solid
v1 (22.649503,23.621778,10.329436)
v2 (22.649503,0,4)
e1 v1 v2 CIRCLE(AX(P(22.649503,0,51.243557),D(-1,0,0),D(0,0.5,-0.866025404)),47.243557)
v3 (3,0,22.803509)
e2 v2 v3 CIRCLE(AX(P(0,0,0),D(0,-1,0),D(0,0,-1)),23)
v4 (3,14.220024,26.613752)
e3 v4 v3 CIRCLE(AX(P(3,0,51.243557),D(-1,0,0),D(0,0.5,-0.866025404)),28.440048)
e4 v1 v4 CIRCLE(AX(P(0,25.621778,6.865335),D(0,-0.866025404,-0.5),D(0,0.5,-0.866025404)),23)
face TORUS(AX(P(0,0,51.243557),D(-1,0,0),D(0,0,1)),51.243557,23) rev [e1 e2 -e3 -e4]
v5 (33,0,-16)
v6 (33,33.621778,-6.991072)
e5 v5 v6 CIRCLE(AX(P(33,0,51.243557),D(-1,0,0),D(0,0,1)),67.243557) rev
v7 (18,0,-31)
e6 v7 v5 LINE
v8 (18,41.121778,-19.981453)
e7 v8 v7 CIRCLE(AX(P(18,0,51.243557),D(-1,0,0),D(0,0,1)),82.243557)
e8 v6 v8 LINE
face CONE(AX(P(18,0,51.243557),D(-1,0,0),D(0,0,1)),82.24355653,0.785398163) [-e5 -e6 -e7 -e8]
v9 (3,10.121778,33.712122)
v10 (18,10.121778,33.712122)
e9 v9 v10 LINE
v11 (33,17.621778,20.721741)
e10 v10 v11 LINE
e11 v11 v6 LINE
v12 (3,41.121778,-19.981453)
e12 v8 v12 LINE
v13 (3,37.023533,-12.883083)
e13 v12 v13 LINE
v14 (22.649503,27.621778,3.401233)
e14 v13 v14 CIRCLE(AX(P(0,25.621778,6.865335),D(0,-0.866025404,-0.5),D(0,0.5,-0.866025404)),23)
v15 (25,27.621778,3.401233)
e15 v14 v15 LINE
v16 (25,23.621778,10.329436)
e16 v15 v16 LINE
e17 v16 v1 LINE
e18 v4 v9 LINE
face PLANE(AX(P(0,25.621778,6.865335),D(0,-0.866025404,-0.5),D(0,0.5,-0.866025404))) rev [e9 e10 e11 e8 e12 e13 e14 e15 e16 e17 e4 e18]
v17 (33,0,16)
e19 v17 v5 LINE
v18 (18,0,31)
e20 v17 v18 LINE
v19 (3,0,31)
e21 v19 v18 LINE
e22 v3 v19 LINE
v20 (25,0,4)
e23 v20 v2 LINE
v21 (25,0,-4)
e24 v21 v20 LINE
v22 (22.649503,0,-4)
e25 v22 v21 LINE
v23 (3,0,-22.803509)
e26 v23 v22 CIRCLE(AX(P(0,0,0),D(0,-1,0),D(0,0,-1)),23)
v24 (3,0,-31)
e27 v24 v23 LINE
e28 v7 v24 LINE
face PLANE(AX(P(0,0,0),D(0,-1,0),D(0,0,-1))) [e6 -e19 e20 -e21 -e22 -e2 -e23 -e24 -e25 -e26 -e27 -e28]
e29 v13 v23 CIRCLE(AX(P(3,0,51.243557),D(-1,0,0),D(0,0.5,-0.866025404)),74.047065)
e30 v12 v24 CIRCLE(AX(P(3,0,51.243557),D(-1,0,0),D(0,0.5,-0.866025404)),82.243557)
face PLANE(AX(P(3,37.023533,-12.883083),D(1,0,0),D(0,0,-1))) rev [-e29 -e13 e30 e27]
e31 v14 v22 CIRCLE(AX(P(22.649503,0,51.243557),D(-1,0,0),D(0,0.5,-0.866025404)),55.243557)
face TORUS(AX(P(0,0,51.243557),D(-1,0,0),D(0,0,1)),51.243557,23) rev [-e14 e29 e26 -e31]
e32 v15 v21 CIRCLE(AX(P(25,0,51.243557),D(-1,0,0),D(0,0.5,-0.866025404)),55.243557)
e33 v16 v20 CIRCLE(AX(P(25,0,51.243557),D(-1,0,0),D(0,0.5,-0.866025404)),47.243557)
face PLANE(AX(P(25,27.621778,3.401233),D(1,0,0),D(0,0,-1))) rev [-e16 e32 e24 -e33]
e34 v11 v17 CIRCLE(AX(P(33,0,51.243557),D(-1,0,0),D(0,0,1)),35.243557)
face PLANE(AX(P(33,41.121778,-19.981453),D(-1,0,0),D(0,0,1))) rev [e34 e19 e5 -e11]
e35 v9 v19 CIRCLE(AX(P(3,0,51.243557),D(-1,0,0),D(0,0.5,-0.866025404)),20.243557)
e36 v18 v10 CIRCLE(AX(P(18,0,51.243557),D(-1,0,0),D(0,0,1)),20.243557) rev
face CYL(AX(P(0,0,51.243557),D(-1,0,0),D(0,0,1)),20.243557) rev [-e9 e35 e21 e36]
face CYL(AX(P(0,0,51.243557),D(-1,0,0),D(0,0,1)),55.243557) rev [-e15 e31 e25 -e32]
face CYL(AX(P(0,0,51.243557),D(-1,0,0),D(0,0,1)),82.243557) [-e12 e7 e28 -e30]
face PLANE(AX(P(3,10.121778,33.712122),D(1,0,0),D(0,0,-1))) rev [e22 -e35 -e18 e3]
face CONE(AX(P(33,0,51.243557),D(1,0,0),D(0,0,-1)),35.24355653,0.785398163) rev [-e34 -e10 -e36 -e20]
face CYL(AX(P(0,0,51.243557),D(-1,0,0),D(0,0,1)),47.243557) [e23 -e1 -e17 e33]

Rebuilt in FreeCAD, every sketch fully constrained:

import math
import FreeCAD as App
import Part
import Sketcher


def edges_at(feature, points):
    """Names of the edges that pass closest to the given points."""
    edges = feature.Shape.Edges
    near = lambda p: min(range(len(edges)), key=lambda i: edges[i].distToShape(Part.Vertex(*p))[0])
    return sorted({f"Edge{near(p) + 1}" for p in points})

doc = App.newDocument("Part")
body = doc.addObject("PartDesign::Body", "Body")

# Sketch on XZ plane
sketch1 = body.newObject("Sketcher::SketchObject", "Sketch")
sketch1.AttachmentSupport = (doc.getObject("XZ_Plane"), [""])
sketch1.MapMode = "FlatFace"
sketch1.addGeometry([
    Part.LineSegment(App.Vector(3, -31, 0), App.Vector(3, -22.803509, 0)),  # 0
    Part.ArcOfCircle(Part.Circle(App.Vector(0, 0, 0), App.Vector(0, 0, 1), 23), math.radians(-82.505283), math.radians(-10.01541)),  # 1
    Part.LineSegment(App.Vector(22.649503, -4, 0), App.Vector(25, -4, 0)),  # 2
    Part.LineSegment(App.Vector(25, -4, 0), App.Vector(25, 4, 0)),  # 3
    Part.LineSegment(App.Vector(25, 4, 0), App.Vector(22.649503, 4, 0)),  # 4
    Part.ArcOfCircle(Part.Circle(App.Vector(0, 0, 0), App.Vector(0, 0, 1), 23), math.radians(10.01541), math.radians(82.505283)),  # 5
    Part.LineSegment(App.Vector(3, 22.803509, 0), App.Vector(3, 31, 0)),  # 6
    Part.LineSegment(App.Vector(3, 31, 0), App.Vector(33, 31, 0)),  # 7
    Part.LineSegment(App.Vector(33, 31, 0), App.Vector(33, -31, 0)),  # 8
    Part.LineSegment(App.Vector(33, -31, 0), App.Vector(3, -31, 0)),  # 9
], False)
sketch1.addConstraint([
    Sketcher.Constraint("Coincident", 0, 2, 1, 1),
    Sketcher.Constraint("Coincident", 1, 2, 2, 1),
    Sketcher.Constraint("Coincident", 2, 2, 3, 1),
    Sketcher.Constraint("Coincident", 3, 2, 4, 1),
    Sketcher.Constraint("Coincident", 4, 2, 5, 1),
    Sketcher.Constraint("Coincident", 5, 2, 6, 1),
    Sketcher.Constraint("Coincident", 6, 2, 7, 1),
    Sketcher.Constraint("Coincident", 7, 2, 8, 1),
    Sketcher.Constraint("Coincident", 8, 2, 9, 1),
    Sketcher.Constraint("Coincident", 9, 2, 0, 1),
    Sketcher.Constraint("Vertical", 0),
    Sketcher.Constraint("Horizontal", 2),
    Sketcher.Constraint("Vertical", 3),
    Sketcher.Constraint("Horizontal", 4),
    Sketcher.Constraint("Vertical", 6),
    Sketcher.Constraint("Horizontal", 7),
    Sketcher.Constraint("Vertical", 8),
    Sketcher.Constraint("Horizontal", 9),
    Sketcher.Constraint("Coincident", 1, 3, -1, 1),
    Sketcher.Constraint("Coincident", 5, 3, -1, 1),
    Sketcher.Constraint("Equal", 1, 5),
    Sketcher.Constraint("Symmetric", 6, 2, 9, 2, -1),
    Sketcher.Constraint("Vertical", 1, 2, 4, 2),
    Sketcher.Constraint("Radius", 1, 23.0),
    Sketcher.Constraint("DistanceX", 7, 1, 7, 2, 30.0),
    Sketcher.Constraint("DistanceY", 3, 1, 3, 2, 8.0),
    Sketcher.Constraint("DistanceY", 8, 2, 8, 1, 62.0),
    Sketcher.Constraint("DistanceX", -1, 1, 0, 2, 3.0),
    Sketcher.Constraint("DistanceX", -1, 1, 2, 2, 25.0),
])

# Sketch on YZ plane
sketch2 = body.newObject("Sketcher::SketchObject", "Sketch001")
sketch2.AttachmentSupport = (doc.getObject("YZ_Plane"), [""])
sketch2.MapMode = "FlatFace"
sketch2.addGeometry(Part.ArcOfCircle(Part.Circle(App.Vector(0, 51.243557, 0), App.Vector(0, 0, 1), 51.243557), math.radians(-90), math.radians(-60)), False)
sketch2.addConstraint([
    Sketcher.Constraint("Coincident", 0, 1, -1, 1),
    Sketcher.Constraint("PointOnObject", 0, 3, -2),
    Sketcher.Constraint("Radius", 0, 51.243557),
    Sketcher.Constraint("DistanceX", -1, 1, 0, 2, 25.621778),
])
doc.recompute()

additivepipe = body.newObject("PartDesign::AdditivePipe", "AdditivePipe")
additivepipe.Profile = sketch1
additivepipe.Spine = (sketch2, ["Edge1"])
doc.recompute()

chamfer = body.newObject("PartDesign::Chamfer", "Chamfer")
chamfer.Base = (additivepipe, edges_at(additivepipe, [(33, 5.239, 31.69), (33, 21.286, -28.198)]))
chamfer.Size = 15

doc.recompute()
